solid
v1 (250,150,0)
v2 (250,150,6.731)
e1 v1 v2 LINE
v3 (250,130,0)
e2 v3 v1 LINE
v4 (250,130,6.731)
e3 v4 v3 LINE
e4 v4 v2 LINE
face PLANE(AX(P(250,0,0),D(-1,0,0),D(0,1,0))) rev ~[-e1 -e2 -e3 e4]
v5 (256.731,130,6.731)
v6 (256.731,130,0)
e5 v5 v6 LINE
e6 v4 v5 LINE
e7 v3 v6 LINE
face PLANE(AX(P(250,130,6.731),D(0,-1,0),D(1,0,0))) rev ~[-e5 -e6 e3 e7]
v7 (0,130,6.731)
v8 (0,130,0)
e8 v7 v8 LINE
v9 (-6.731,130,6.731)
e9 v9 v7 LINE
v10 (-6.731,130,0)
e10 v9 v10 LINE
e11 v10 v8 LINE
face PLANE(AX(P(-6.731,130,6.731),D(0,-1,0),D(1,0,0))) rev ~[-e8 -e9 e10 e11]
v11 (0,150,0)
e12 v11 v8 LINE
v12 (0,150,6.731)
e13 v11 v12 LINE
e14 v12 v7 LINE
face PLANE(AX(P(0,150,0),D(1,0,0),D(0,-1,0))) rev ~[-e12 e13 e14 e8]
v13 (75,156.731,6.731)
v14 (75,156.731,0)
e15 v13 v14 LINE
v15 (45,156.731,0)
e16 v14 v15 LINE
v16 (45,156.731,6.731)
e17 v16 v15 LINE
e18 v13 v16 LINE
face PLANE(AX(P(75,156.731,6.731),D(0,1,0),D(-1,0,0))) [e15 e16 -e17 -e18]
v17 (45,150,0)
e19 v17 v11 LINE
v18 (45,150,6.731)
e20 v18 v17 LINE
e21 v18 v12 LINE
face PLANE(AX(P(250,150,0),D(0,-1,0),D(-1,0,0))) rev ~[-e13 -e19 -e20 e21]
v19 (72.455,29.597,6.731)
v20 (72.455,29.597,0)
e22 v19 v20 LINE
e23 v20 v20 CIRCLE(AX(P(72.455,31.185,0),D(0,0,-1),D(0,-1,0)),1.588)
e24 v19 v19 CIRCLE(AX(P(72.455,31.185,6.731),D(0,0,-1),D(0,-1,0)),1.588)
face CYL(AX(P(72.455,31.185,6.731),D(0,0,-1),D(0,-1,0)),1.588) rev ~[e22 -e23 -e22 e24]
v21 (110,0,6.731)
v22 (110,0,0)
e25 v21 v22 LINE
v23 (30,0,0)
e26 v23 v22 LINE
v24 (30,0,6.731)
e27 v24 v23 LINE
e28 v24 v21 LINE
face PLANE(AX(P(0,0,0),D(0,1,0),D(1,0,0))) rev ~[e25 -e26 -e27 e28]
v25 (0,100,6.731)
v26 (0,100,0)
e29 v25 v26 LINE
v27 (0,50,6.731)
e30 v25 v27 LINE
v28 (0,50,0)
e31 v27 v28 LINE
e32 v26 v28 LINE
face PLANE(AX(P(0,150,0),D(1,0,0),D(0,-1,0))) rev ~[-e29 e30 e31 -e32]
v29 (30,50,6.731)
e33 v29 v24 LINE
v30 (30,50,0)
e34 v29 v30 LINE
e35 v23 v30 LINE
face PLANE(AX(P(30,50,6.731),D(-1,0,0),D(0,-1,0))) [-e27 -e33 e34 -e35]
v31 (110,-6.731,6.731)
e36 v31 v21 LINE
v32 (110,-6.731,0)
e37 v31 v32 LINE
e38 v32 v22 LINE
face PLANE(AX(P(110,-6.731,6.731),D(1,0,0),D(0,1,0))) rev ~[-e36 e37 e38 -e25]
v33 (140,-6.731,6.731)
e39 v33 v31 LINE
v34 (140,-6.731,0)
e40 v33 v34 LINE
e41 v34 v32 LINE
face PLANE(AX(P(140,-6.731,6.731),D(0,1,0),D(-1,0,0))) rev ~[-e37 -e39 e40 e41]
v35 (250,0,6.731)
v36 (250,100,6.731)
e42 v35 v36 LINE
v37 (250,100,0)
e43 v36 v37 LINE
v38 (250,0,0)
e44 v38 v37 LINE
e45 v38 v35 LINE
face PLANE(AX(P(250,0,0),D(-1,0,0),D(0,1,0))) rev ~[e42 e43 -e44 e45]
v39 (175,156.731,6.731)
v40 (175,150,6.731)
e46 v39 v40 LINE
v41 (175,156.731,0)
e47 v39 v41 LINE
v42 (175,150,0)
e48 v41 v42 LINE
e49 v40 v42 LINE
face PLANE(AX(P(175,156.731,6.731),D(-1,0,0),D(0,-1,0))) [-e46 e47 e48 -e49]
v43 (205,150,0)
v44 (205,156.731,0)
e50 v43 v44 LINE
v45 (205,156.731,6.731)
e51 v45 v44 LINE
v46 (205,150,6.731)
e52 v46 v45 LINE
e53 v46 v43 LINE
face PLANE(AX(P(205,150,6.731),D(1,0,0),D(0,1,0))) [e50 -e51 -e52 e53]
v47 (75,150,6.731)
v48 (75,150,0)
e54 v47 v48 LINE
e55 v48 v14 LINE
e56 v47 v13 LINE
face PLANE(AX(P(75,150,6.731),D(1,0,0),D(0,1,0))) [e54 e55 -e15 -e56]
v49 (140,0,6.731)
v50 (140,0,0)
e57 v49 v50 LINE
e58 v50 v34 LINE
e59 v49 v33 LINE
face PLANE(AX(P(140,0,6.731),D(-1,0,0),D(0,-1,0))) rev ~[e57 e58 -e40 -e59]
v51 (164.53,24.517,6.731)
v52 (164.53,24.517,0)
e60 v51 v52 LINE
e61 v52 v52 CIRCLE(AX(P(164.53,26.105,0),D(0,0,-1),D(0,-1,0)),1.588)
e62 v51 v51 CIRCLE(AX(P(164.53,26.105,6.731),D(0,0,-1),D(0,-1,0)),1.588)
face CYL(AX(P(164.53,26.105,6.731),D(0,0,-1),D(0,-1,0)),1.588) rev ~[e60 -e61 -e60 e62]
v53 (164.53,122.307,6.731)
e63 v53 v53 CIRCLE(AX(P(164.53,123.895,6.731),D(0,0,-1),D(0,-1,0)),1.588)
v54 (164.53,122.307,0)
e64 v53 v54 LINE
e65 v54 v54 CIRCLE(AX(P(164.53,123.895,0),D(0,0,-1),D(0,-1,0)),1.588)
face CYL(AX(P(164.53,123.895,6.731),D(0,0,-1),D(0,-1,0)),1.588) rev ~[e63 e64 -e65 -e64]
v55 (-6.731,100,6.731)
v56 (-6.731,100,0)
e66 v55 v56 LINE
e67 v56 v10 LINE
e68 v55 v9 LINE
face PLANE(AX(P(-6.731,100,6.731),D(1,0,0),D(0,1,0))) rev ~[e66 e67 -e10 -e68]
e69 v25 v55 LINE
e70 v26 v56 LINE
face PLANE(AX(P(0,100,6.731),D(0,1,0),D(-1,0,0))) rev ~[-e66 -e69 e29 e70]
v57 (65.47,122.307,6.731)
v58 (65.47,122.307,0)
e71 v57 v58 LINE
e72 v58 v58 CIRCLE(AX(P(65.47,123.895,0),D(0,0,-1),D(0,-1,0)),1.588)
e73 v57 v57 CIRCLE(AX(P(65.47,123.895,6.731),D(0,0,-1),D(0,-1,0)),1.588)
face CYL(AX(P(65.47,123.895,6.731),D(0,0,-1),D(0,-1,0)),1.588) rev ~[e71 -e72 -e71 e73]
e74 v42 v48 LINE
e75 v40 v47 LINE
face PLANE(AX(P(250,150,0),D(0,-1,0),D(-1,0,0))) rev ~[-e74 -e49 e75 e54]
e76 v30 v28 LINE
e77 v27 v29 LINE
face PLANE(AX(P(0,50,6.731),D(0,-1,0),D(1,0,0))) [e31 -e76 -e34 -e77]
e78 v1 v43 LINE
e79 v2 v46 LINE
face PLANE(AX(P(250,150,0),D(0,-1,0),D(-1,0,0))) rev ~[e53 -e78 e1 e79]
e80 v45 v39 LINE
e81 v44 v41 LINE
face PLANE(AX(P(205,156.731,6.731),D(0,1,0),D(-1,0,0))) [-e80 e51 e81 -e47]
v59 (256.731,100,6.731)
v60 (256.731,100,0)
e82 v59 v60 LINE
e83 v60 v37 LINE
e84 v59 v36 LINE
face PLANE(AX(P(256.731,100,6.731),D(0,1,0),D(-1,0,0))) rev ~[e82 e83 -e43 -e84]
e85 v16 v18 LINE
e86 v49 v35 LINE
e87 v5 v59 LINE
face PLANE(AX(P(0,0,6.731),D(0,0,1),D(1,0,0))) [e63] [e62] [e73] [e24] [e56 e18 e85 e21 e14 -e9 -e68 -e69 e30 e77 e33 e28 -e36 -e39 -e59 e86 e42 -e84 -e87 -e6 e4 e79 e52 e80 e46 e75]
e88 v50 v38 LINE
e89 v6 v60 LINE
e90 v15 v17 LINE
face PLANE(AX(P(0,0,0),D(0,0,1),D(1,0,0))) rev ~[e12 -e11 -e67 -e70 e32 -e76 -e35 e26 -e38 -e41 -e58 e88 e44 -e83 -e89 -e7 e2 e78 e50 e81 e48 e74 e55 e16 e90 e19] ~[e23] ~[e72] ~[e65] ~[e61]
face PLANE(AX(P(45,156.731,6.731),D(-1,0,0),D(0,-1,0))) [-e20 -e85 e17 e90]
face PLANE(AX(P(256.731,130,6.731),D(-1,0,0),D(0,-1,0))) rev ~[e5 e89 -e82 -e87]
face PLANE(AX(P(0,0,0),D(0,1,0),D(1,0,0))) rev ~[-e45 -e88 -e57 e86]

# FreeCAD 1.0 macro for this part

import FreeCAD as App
import Part
import Sketcher

V = App.Vector

doc = App.newDocument("Part")
body = doc.addObject("PartDesign::Body", "Body")

# Sketch on XY plane
sketch1 = doc.addObject("Sketcher::SketchObject", "Sketch")
body.addObject(sketch1)
sketch1.AttachmentSupport = (doc.XY_Plane, [""])
sketch1.MapMode = "FlatFace"
sketch1.addGeometry([
    Part.LineSegment(V(0, 150, 0), V(0, 0, 0)),
    Part.LineSegment(V(0, 0, 0), V(250, 0, 0)),
    Part.LineSegment(V(250, 0, 0), V(250, 150, 0)),
    Part.LineSegment(V(250, 150, 0), V(0, 150, 0)),
], False)
sketch1.addConstraint([
    Sketcher.Constraint("Coincident", 0, 2, 1, 1),
    Sketcher.Constraint("Coincident", 1, 2, 2, 1),
    Sketcher.Constraint("Coincident", 2, 2, 3, 1),
    Sketcher.Constraint("Coincident", 3, 2, 0, 1),
    Sketcher.Constraint("Vertical", 0),
    Sketcher.Constraint("Horizontal", 1),
    Sketcher.Constraint("Vertical", 2),
    Sketcher.Constraint("Horizontal", 3),
    Sketcher.Constraint("Coincident", 0, 2, -1, 1),
    Sketcher.Constraint("DistanceX", 1, 1, 1, 2, 250.0),
    Sketcher.Constraint("DistanceY", 0, 2, 0, 1, 150.0),
])
pad1 = doc.addObject("PartDesign::Pad", "Pad")
body.addObject(pad1)
pad1.Profile = sketch1
pad1.Length = 6.731

# Sketch on XY plane
sketch2 = doc.addObject("Sketcher::SketchObject", "Sketch001")
body.addObject(sketch2)
sketch2.AttachmentSupport = (doc.XY_Plane, [""])
sketch2.MapMode = "FlatFace"
sketch2.AttachmentOffset = App.Placement(V(0, 0, 6.731), App.Rotation())
sketch2.addGeometry([
    Part.Circle(V(72.455, 31.185, 0), V(0, 0, 1), 1.588),
    Part.Circle(V(65.47, 123.895, 0), V(0, 0, 1), 1.588),
    Part.Circle(V(164.53, 123.895, 0), V(0, 0, 1), 1.588),
    Part.Circle(V(164.53, 26.105, 0), V(0, 0, 1), 1.588),
], False)
sketch2.addConstraint([
    Sketcher.Constraint("Equal", 0, 1),
    Sketcher.Constraint("Equal", 1, 2),
    Sketcher.Constraint("Equal", 2, 3),
    Sketcher.Constraint("Horizontal", 1, 3, 2, 3),
    Sketcher.Constraint("Vertical", 2, 3, 3, 3),
    Sketcher.Constraint("Diameter", 0, 3.176),
    Sketcher.Constraint("DistanceX", -1, 1, 1, 3, 65.47),
    Sketcher.Constraint("DistanceX", -1, 1, 2, 3, 164.53),
    Sketcher.Constraint("DistanceY", 0, 3, 1, 3, 92.71),
    Sketcher.Constraint("DistanceY", 3, 3, 0, 3, 5.08),
    Sketcher.Constraint("DistanceX", -1, 1, 0, 3, 72.455),
    Sketcher.Constraint("DistanceY", -1, 1, 0, 3, 31.185),
])
doc.recompute()
hole = doc.addObject("PartDesign::Hole", "Hole")
body.addObject(hole)
hole.Profile = sketch2
hole.ThreadType = "None"
hole.Diameter = 3.176
hole.DepthType = "ThroughAll"

# Sketch on XY plane
sketch3 = doc.addObject("Sketcher::SketchObject", "Sketch002")
body.addObject(sketch3)
sketch3.AttachmentSupport = (doc.XY_Plane, [""])
sketch3.MapMode = "FlatFace"
sketch3.AttachmentOffset = App.Placement(V(0, 0, 6.731), App.Rotation())
sketch3.addGeometry([
    Part.LineSegment(V(140, 0, 0), V(110, 0, 0)),  # 0
    Part.LineSegment(V(110, 0, 0), V(110, -6.731, 0)),  # 1
    Part.LineSegment(V(110, -6.731, 0), V(140, -6.731, 0)),  # 2
    Part.LineSegment(V(140, -6.731, 0), V(140, 0, 0)),  # 3
    Part.LineSegment(V(-6.731, 100, 0), V(0, 100, 0)),  # 4
    Part.LineSegment(V(0, 100, 0), V(0, 130, 0)),  # 5
    Part.LineSegment(V(0, 130, 0), V(-6.731, 130, 0)),  # 6
    Part.LineSegment(V(-6.731, 130, 0), V(-6.731, 100, 0)),  # 7
    Part.LineSegment(V(250, 130, 0), V(250, 100, 0)),  # 8
    Part.LineSegment(V(250, 100, 0), V(256.731, 100, 0)),  # 9
    Part.LineSegment(V(256.731, 100, 0), V(256.731, 130, 0)),  # 10
    Part.LineSegment(V(256.731, 130, 0), V(250, 130, 0)),  # 11
    Part.LineSegment(V(45, 156.731, 0), V(45, 150, 0)),  # 12
    Part.LineSegment(V(45, 150, 0), V(75, 150, 0)),  # 13
    Part.LineSegment(V(75, 150, 0), V(75, 156.731, 0)),  # 14
    Part.LineSegment(V(75, 156.731, 0), V(45, 156.731, 0)),  # 15
    Part.LineSegment(V(175, 156.731, 0), V(175, 150, 0)),  # 16
    Part.LineSegment(V(175, 150, 0), V(205, 150, 0)),  # 17
    Part.LineSegment(V(205, 150, 0), V(205, 156.731, 0)),  # 18
    Part.LineSegment(V(205, 156.731, 0), V(175, 156.731, 0)),  # 19
], False)
sketch3.addConstraint([
    Sketcher.Constraint("Coincident", 0, 2, 1, 1),
    Sketcher.Constraint("Coincident", 1, 2, 2, 1),
    Sketcher.Constraint("Coincident", 2, 2, 3, 1),
    Sketcher.Constraint("Coincident", 3, 2, 0, 1),
    Sketcher.Constraint("Coincident", 4, 2, 5, 1),
    Sketcher.Constraint("Coincident", 5, 2, 6, 1),
    Sketcher.Constraint("Coincident", 6, 2, 7, 1),
    Sketcher.Constraint("Coincident", 7, 2, 4, 1),
    Sketcher.Constraint("Coincident", 8, 2, 9, 1),
    Sketcher.Constraint("Coincident", 9, 2, 10, 1),
    Sketcher.Constraint("Coincident", 10, 2, 11, 1),
    Sketcher.Constraint("Coincident", 11, 2, 8, 1),
    Sketcher.Constraint("Coincident", 12, 2, 13, 1),
    Sketcher.Constraint("Coincident", 13, 2, 14, 1),
    Sketcher.Constraint("Coincident", 14, 2, 15, 1),
    Sketcher.Constraint("Coincident", 15, 2, 12, 1),
    Sketcher.Constraint("Coincident", 16, 2, 17, 1),
    Sketcher.Constraint("Coincident", 17, 2, 18, 1),
    Sketcher.Constraint("Coincident", 18, 2, 19, 1),
    Sketcher.Constraint("Coincident", 19, 2, 16, 1),
    Sketcher.Constraint("Horizontal", 0),
    Sketcher.Constraint("Vertical", 1),
    Sketcher.Constraint("Horizontal", 2),
    Sketcher.Constraint("Vertical", 3),
    Sketcher.Constraint("Horizontal", 4),
    Sketcher.Constraint("Vertical", 5),
    Sketcher.Constraint("Horizontal", 6),
    Sketcher.Constraint("Vertical", 7),
    Sketcher.Constraint("Vertical", 8),
    Sketcher.Constraint("Horizontal", 9),
    Sketcher.Constraint("Vertical", 10),
    Sketcher.Constraint("Horizontal", 11),
    Sketcher.Constraint("Vertical", 12),
    Sketcher.Constraint("Horizontal", 13),
    Sketcher.Constraint("Vertical", 14),
    Sketcher.Constraint("Horizontal", 15),
    Sketcher.Constraint("Vertical", 16),
    Sketcher.Constraint("Horizontal", 17),
    Sketcher.Constraint("Vertical", 18),
    Sketcher.Constraint("Horizontal", 19),
    Sketcher.Constraint("PointOnObject", 0, 2, -1),
    Sketcher.Constraint("PointOnObject", 4, 2, -2),
    Sketcher.Constraint("Horizontal", 7, 2, 8, 2),
    Sketcher.Constraint("Horizontal", 6, 2, 10, 2),
    Sketcher.Constraint("Horizontal", 13, 2, 16, 2),
    Sketcher.Constraint("Horizontal", 15, 2, 18, 2),
    Sketcher.Constraint("Equal", 6, 9),
    Sketcher.Constraint("Equal", 2, 13),
    Sketcher.Constraint("Equal", 15, 17),
    Sketcher.Constraint("Equal", 11, 1),
    Sketcher.Constraint("Equal", 19, 5),
    Sketcher.Constraint("Equal", 3, 12),
    Sketcher.Constraint("DistanceX", 0, 2, 0, 1, 30.0),
    Sketcher.Constraint("DistanceY", -1, 1, 4, 2, 100.0),
    Sketcher.Constraint("DistanceX", 13, 2, 16, 2, 100.0),
    Sketcher.Constraint("DistanceX", 4, 1, 4, 2, 6.731),
    Sketcher.Constraint("DistanceX", -1, 1, 0, 2, 110.0),
    Sketcher.Constraint("DistanceX", -1, 1, 8, 2, 250.0),
    Sketcher.Constraint("DistanceX", -1, 1, 12, 2, 45.0),
    Sketcher.Constraint("DistanceY", -1, 1, 12, 2, 150.0),
])
pad2 = doc.addObject("PartDesign::Pad", "Pad001")
body.addObject(pad2)
pad2.Profile = sketch3
pad2.Length = 6.731
pad2.Reversed = True

# Sketch on XY plane
sketch4 = doc.addObject("Sketcher::SketchObject", "Sketch003")
body.addObject(sketch4)
sketch4.AttachmentSupport = (doc.XY_Plane, [""])
sketch4.MapMode = "FlatFace"
sketch4.AttachmentOffset = App.Placement(V(0, 0, 6.731), App.Rotation())
sketch4.addGeometry([
    Part.LineSegment(V(0, 50, 0), V(0, 0, 0)),
    Part.LineSegment(V(0, 0, 0), V(30, 0, 0)),
    Part.LineSegment(V(30, 0, 0), V(30, 50, 0)),
    Part.LineSegment(V(30, 50, 0), V(0, 50, 0)),
], False)
sketch4.addConstraint([
    Sketcher.Constraint("Coincident", 0, 2, 1, 1),
    Sketcher.Constraint("Coincident", 1, 2, 2, 1),
    Sketcher.Constraint("Coincident", 2, 2, 3, 1),
    Sketcher.Constraint("Coincident", 3, 2, 0, 1),
    Sketcher.Constraint("Vertical", 0),
    Sketcher.Constraint("Horizontal", 1),
    Sketcher.Constraint("Vertical", 2),
    Sketcher.Constraint("Horizontal", 3),
    Sketcher.Constraint("Coincident", 0, 2, -1, 1),
    Sketcher.Constraint("DistanceX", 1, 1, 1, 2, 30.0),
    Sketcher.Constraint("DistanceY", 0, 2, 0, 1, 50.0),
])
pocket1 = doc.addObject("PartDesign::Pocket", "Pocket")
body.addObject(pocket1)
pocket1.Profile = sketch4
pocket1.Type = "UpToFirst"

doc.recompute()
